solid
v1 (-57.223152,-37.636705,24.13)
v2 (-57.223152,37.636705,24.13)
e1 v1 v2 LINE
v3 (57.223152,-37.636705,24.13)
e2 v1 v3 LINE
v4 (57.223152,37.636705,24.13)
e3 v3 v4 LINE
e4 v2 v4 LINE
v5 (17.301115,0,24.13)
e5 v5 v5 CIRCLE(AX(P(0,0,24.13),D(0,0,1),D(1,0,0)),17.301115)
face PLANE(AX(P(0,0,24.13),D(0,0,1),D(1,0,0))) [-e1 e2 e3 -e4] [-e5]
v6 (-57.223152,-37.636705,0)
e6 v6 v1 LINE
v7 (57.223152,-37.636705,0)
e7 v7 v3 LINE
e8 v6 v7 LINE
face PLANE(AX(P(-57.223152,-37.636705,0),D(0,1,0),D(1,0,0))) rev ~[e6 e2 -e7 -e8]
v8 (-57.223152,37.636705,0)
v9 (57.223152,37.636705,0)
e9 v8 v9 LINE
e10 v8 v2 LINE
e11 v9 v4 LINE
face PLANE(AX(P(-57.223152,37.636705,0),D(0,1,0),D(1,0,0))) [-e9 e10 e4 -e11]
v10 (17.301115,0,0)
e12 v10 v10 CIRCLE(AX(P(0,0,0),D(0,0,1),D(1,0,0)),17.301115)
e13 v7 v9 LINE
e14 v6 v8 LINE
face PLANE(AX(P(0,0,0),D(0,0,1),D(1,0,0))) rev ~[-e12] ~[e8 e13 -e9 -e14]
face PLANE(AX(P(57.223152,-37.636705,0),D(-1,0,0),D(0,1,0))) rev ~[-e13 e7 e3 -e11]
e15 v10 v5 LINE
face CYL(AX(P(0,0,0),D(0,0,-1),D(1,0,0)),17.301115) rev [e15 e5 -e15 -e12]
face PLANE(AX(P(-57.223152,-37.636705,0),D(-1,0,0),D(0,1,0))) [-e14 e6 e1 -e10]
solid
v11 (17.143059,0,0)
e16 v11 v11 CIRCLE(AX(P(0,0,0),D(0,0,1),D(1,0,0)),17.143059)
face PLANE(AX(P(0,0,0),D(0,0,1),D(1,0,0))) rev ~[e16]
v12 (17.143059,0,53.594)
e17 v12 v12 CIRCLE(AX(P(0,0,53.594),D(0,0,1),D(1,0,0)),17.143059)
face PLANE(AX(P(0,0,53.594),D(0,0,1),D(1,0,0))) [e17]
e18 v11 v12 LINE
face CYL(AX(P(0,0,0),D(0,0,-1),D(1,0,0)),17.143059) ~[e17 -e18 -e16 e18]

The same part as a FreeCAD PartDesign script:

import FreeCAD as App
import Part
import Sketcher

V = App.Vector

doc = App.newDocument("Part")
params = doc.addObject("Spreadsheet::Sheet", "Params")
for row, (alias, value) in enumerate([
    ("pad1_length", "0.95 in"),
    ("pad2_length", "2.11 in"),
], start=1):
    params.set(f"A{row}", alias)
    params.set(f"B{row}", "=" + value)
    params.setAlias(f"B{row}", alias)

body = doc.addObject("PartDesign::Body", "Body")

# Sketch on XY plane
sketch1 = doc.addObject("Sketcher::SketchObject", "Sketch")
body.addObject(sketch1)
sketch1.AttachmentSupport = (doc.XY_Plane, [""])
sketch1.MapMode = "FlatFace"
sketch1.addGeometry([
    Part.LineSegment(V(-57, 38, 0), V(-57, -38, 0)),  # 0
    Part.LineSegment(V(-57, -38, 0), V(57, -38, 0)),  # 1
    Part.LineSegment(V(57, -38, 0), V(57, 38, 0)),  # 2
    Part.LineSegment(V(57, 38, 0), V(-57, 38, 0)),  # 3
    Part.Circle(V(0, 0, 0), V(0, 0, 1), 17),  # 4
], False)
sketch1.addConstraint([
    Sketcher.Constraint("Coincident", 0, 2, 1, 1),
    Sketcher.Constraint("Coincident", 1, 2, 2, 1),
    Sketcher.Constraint("Coincident", 2, 2, 3, 1),
    Sketcher.Constraint("Coincident", 3, 2, 0, 1),
    Sketcher.Constraint("Vertical", 0),
    Sketcher.Constraint("Horizontal", 1),
    Sketcher.Constraint("Vertical", 2),
    Sketcher.Constraint("Horizontal", 3),
    Sketcher.Constraint("Coincident", 4, 3, -1, 1),
    Sketcher.Constraint("Symmetric", 0, 2, 2, 2, -1, 1),
    Sketcher.Constraint("Diameter", 4, 34.60223),
    Sketcher.Constraint("DistanceY", 0, 2, 0, 1, 75.27341),
    Sketcher.Constraint("DistanceX", 1, 1, 1, 2, 114.446304),
])
pad1 = doc.addObject("PartDesign::Pad", "Pad")
body.addObject(pad1)
pad1.Profile = sketch1
pad1.setExpression("Length", "Params.pad1_length")
body2 = doc.addObject("PartDesign::Body", "Body001")

# Sketch on XY plane
sketch2 = doc.addObject("Sketcher::SketchObject", "Sketch001")
body2.addObject(sketch2)
sketch2.AttachmentSupport = (doc.getObject("XY_Plane001"), [""])
sketch2.MapMode = "FlatFace"
sketch2.addGeometry(Part.Circle(V(0, 0, 0), V(0, 0, 1), 17), False)
sketch2.addConstraint([
    Sketcher.Constraint("Coincident", 0, 3, -1, 1),
    Sketcher.Constraint("Diameter", 0, 34.286118),
])
pad2 = doc.addObject("PartDesign::Pad", "Pad001")
body2.addObject(pad2)
pad2.Profile = sketch2
pad2.setExpression("Length", "Params.pad2_length")

doc.recompute()
